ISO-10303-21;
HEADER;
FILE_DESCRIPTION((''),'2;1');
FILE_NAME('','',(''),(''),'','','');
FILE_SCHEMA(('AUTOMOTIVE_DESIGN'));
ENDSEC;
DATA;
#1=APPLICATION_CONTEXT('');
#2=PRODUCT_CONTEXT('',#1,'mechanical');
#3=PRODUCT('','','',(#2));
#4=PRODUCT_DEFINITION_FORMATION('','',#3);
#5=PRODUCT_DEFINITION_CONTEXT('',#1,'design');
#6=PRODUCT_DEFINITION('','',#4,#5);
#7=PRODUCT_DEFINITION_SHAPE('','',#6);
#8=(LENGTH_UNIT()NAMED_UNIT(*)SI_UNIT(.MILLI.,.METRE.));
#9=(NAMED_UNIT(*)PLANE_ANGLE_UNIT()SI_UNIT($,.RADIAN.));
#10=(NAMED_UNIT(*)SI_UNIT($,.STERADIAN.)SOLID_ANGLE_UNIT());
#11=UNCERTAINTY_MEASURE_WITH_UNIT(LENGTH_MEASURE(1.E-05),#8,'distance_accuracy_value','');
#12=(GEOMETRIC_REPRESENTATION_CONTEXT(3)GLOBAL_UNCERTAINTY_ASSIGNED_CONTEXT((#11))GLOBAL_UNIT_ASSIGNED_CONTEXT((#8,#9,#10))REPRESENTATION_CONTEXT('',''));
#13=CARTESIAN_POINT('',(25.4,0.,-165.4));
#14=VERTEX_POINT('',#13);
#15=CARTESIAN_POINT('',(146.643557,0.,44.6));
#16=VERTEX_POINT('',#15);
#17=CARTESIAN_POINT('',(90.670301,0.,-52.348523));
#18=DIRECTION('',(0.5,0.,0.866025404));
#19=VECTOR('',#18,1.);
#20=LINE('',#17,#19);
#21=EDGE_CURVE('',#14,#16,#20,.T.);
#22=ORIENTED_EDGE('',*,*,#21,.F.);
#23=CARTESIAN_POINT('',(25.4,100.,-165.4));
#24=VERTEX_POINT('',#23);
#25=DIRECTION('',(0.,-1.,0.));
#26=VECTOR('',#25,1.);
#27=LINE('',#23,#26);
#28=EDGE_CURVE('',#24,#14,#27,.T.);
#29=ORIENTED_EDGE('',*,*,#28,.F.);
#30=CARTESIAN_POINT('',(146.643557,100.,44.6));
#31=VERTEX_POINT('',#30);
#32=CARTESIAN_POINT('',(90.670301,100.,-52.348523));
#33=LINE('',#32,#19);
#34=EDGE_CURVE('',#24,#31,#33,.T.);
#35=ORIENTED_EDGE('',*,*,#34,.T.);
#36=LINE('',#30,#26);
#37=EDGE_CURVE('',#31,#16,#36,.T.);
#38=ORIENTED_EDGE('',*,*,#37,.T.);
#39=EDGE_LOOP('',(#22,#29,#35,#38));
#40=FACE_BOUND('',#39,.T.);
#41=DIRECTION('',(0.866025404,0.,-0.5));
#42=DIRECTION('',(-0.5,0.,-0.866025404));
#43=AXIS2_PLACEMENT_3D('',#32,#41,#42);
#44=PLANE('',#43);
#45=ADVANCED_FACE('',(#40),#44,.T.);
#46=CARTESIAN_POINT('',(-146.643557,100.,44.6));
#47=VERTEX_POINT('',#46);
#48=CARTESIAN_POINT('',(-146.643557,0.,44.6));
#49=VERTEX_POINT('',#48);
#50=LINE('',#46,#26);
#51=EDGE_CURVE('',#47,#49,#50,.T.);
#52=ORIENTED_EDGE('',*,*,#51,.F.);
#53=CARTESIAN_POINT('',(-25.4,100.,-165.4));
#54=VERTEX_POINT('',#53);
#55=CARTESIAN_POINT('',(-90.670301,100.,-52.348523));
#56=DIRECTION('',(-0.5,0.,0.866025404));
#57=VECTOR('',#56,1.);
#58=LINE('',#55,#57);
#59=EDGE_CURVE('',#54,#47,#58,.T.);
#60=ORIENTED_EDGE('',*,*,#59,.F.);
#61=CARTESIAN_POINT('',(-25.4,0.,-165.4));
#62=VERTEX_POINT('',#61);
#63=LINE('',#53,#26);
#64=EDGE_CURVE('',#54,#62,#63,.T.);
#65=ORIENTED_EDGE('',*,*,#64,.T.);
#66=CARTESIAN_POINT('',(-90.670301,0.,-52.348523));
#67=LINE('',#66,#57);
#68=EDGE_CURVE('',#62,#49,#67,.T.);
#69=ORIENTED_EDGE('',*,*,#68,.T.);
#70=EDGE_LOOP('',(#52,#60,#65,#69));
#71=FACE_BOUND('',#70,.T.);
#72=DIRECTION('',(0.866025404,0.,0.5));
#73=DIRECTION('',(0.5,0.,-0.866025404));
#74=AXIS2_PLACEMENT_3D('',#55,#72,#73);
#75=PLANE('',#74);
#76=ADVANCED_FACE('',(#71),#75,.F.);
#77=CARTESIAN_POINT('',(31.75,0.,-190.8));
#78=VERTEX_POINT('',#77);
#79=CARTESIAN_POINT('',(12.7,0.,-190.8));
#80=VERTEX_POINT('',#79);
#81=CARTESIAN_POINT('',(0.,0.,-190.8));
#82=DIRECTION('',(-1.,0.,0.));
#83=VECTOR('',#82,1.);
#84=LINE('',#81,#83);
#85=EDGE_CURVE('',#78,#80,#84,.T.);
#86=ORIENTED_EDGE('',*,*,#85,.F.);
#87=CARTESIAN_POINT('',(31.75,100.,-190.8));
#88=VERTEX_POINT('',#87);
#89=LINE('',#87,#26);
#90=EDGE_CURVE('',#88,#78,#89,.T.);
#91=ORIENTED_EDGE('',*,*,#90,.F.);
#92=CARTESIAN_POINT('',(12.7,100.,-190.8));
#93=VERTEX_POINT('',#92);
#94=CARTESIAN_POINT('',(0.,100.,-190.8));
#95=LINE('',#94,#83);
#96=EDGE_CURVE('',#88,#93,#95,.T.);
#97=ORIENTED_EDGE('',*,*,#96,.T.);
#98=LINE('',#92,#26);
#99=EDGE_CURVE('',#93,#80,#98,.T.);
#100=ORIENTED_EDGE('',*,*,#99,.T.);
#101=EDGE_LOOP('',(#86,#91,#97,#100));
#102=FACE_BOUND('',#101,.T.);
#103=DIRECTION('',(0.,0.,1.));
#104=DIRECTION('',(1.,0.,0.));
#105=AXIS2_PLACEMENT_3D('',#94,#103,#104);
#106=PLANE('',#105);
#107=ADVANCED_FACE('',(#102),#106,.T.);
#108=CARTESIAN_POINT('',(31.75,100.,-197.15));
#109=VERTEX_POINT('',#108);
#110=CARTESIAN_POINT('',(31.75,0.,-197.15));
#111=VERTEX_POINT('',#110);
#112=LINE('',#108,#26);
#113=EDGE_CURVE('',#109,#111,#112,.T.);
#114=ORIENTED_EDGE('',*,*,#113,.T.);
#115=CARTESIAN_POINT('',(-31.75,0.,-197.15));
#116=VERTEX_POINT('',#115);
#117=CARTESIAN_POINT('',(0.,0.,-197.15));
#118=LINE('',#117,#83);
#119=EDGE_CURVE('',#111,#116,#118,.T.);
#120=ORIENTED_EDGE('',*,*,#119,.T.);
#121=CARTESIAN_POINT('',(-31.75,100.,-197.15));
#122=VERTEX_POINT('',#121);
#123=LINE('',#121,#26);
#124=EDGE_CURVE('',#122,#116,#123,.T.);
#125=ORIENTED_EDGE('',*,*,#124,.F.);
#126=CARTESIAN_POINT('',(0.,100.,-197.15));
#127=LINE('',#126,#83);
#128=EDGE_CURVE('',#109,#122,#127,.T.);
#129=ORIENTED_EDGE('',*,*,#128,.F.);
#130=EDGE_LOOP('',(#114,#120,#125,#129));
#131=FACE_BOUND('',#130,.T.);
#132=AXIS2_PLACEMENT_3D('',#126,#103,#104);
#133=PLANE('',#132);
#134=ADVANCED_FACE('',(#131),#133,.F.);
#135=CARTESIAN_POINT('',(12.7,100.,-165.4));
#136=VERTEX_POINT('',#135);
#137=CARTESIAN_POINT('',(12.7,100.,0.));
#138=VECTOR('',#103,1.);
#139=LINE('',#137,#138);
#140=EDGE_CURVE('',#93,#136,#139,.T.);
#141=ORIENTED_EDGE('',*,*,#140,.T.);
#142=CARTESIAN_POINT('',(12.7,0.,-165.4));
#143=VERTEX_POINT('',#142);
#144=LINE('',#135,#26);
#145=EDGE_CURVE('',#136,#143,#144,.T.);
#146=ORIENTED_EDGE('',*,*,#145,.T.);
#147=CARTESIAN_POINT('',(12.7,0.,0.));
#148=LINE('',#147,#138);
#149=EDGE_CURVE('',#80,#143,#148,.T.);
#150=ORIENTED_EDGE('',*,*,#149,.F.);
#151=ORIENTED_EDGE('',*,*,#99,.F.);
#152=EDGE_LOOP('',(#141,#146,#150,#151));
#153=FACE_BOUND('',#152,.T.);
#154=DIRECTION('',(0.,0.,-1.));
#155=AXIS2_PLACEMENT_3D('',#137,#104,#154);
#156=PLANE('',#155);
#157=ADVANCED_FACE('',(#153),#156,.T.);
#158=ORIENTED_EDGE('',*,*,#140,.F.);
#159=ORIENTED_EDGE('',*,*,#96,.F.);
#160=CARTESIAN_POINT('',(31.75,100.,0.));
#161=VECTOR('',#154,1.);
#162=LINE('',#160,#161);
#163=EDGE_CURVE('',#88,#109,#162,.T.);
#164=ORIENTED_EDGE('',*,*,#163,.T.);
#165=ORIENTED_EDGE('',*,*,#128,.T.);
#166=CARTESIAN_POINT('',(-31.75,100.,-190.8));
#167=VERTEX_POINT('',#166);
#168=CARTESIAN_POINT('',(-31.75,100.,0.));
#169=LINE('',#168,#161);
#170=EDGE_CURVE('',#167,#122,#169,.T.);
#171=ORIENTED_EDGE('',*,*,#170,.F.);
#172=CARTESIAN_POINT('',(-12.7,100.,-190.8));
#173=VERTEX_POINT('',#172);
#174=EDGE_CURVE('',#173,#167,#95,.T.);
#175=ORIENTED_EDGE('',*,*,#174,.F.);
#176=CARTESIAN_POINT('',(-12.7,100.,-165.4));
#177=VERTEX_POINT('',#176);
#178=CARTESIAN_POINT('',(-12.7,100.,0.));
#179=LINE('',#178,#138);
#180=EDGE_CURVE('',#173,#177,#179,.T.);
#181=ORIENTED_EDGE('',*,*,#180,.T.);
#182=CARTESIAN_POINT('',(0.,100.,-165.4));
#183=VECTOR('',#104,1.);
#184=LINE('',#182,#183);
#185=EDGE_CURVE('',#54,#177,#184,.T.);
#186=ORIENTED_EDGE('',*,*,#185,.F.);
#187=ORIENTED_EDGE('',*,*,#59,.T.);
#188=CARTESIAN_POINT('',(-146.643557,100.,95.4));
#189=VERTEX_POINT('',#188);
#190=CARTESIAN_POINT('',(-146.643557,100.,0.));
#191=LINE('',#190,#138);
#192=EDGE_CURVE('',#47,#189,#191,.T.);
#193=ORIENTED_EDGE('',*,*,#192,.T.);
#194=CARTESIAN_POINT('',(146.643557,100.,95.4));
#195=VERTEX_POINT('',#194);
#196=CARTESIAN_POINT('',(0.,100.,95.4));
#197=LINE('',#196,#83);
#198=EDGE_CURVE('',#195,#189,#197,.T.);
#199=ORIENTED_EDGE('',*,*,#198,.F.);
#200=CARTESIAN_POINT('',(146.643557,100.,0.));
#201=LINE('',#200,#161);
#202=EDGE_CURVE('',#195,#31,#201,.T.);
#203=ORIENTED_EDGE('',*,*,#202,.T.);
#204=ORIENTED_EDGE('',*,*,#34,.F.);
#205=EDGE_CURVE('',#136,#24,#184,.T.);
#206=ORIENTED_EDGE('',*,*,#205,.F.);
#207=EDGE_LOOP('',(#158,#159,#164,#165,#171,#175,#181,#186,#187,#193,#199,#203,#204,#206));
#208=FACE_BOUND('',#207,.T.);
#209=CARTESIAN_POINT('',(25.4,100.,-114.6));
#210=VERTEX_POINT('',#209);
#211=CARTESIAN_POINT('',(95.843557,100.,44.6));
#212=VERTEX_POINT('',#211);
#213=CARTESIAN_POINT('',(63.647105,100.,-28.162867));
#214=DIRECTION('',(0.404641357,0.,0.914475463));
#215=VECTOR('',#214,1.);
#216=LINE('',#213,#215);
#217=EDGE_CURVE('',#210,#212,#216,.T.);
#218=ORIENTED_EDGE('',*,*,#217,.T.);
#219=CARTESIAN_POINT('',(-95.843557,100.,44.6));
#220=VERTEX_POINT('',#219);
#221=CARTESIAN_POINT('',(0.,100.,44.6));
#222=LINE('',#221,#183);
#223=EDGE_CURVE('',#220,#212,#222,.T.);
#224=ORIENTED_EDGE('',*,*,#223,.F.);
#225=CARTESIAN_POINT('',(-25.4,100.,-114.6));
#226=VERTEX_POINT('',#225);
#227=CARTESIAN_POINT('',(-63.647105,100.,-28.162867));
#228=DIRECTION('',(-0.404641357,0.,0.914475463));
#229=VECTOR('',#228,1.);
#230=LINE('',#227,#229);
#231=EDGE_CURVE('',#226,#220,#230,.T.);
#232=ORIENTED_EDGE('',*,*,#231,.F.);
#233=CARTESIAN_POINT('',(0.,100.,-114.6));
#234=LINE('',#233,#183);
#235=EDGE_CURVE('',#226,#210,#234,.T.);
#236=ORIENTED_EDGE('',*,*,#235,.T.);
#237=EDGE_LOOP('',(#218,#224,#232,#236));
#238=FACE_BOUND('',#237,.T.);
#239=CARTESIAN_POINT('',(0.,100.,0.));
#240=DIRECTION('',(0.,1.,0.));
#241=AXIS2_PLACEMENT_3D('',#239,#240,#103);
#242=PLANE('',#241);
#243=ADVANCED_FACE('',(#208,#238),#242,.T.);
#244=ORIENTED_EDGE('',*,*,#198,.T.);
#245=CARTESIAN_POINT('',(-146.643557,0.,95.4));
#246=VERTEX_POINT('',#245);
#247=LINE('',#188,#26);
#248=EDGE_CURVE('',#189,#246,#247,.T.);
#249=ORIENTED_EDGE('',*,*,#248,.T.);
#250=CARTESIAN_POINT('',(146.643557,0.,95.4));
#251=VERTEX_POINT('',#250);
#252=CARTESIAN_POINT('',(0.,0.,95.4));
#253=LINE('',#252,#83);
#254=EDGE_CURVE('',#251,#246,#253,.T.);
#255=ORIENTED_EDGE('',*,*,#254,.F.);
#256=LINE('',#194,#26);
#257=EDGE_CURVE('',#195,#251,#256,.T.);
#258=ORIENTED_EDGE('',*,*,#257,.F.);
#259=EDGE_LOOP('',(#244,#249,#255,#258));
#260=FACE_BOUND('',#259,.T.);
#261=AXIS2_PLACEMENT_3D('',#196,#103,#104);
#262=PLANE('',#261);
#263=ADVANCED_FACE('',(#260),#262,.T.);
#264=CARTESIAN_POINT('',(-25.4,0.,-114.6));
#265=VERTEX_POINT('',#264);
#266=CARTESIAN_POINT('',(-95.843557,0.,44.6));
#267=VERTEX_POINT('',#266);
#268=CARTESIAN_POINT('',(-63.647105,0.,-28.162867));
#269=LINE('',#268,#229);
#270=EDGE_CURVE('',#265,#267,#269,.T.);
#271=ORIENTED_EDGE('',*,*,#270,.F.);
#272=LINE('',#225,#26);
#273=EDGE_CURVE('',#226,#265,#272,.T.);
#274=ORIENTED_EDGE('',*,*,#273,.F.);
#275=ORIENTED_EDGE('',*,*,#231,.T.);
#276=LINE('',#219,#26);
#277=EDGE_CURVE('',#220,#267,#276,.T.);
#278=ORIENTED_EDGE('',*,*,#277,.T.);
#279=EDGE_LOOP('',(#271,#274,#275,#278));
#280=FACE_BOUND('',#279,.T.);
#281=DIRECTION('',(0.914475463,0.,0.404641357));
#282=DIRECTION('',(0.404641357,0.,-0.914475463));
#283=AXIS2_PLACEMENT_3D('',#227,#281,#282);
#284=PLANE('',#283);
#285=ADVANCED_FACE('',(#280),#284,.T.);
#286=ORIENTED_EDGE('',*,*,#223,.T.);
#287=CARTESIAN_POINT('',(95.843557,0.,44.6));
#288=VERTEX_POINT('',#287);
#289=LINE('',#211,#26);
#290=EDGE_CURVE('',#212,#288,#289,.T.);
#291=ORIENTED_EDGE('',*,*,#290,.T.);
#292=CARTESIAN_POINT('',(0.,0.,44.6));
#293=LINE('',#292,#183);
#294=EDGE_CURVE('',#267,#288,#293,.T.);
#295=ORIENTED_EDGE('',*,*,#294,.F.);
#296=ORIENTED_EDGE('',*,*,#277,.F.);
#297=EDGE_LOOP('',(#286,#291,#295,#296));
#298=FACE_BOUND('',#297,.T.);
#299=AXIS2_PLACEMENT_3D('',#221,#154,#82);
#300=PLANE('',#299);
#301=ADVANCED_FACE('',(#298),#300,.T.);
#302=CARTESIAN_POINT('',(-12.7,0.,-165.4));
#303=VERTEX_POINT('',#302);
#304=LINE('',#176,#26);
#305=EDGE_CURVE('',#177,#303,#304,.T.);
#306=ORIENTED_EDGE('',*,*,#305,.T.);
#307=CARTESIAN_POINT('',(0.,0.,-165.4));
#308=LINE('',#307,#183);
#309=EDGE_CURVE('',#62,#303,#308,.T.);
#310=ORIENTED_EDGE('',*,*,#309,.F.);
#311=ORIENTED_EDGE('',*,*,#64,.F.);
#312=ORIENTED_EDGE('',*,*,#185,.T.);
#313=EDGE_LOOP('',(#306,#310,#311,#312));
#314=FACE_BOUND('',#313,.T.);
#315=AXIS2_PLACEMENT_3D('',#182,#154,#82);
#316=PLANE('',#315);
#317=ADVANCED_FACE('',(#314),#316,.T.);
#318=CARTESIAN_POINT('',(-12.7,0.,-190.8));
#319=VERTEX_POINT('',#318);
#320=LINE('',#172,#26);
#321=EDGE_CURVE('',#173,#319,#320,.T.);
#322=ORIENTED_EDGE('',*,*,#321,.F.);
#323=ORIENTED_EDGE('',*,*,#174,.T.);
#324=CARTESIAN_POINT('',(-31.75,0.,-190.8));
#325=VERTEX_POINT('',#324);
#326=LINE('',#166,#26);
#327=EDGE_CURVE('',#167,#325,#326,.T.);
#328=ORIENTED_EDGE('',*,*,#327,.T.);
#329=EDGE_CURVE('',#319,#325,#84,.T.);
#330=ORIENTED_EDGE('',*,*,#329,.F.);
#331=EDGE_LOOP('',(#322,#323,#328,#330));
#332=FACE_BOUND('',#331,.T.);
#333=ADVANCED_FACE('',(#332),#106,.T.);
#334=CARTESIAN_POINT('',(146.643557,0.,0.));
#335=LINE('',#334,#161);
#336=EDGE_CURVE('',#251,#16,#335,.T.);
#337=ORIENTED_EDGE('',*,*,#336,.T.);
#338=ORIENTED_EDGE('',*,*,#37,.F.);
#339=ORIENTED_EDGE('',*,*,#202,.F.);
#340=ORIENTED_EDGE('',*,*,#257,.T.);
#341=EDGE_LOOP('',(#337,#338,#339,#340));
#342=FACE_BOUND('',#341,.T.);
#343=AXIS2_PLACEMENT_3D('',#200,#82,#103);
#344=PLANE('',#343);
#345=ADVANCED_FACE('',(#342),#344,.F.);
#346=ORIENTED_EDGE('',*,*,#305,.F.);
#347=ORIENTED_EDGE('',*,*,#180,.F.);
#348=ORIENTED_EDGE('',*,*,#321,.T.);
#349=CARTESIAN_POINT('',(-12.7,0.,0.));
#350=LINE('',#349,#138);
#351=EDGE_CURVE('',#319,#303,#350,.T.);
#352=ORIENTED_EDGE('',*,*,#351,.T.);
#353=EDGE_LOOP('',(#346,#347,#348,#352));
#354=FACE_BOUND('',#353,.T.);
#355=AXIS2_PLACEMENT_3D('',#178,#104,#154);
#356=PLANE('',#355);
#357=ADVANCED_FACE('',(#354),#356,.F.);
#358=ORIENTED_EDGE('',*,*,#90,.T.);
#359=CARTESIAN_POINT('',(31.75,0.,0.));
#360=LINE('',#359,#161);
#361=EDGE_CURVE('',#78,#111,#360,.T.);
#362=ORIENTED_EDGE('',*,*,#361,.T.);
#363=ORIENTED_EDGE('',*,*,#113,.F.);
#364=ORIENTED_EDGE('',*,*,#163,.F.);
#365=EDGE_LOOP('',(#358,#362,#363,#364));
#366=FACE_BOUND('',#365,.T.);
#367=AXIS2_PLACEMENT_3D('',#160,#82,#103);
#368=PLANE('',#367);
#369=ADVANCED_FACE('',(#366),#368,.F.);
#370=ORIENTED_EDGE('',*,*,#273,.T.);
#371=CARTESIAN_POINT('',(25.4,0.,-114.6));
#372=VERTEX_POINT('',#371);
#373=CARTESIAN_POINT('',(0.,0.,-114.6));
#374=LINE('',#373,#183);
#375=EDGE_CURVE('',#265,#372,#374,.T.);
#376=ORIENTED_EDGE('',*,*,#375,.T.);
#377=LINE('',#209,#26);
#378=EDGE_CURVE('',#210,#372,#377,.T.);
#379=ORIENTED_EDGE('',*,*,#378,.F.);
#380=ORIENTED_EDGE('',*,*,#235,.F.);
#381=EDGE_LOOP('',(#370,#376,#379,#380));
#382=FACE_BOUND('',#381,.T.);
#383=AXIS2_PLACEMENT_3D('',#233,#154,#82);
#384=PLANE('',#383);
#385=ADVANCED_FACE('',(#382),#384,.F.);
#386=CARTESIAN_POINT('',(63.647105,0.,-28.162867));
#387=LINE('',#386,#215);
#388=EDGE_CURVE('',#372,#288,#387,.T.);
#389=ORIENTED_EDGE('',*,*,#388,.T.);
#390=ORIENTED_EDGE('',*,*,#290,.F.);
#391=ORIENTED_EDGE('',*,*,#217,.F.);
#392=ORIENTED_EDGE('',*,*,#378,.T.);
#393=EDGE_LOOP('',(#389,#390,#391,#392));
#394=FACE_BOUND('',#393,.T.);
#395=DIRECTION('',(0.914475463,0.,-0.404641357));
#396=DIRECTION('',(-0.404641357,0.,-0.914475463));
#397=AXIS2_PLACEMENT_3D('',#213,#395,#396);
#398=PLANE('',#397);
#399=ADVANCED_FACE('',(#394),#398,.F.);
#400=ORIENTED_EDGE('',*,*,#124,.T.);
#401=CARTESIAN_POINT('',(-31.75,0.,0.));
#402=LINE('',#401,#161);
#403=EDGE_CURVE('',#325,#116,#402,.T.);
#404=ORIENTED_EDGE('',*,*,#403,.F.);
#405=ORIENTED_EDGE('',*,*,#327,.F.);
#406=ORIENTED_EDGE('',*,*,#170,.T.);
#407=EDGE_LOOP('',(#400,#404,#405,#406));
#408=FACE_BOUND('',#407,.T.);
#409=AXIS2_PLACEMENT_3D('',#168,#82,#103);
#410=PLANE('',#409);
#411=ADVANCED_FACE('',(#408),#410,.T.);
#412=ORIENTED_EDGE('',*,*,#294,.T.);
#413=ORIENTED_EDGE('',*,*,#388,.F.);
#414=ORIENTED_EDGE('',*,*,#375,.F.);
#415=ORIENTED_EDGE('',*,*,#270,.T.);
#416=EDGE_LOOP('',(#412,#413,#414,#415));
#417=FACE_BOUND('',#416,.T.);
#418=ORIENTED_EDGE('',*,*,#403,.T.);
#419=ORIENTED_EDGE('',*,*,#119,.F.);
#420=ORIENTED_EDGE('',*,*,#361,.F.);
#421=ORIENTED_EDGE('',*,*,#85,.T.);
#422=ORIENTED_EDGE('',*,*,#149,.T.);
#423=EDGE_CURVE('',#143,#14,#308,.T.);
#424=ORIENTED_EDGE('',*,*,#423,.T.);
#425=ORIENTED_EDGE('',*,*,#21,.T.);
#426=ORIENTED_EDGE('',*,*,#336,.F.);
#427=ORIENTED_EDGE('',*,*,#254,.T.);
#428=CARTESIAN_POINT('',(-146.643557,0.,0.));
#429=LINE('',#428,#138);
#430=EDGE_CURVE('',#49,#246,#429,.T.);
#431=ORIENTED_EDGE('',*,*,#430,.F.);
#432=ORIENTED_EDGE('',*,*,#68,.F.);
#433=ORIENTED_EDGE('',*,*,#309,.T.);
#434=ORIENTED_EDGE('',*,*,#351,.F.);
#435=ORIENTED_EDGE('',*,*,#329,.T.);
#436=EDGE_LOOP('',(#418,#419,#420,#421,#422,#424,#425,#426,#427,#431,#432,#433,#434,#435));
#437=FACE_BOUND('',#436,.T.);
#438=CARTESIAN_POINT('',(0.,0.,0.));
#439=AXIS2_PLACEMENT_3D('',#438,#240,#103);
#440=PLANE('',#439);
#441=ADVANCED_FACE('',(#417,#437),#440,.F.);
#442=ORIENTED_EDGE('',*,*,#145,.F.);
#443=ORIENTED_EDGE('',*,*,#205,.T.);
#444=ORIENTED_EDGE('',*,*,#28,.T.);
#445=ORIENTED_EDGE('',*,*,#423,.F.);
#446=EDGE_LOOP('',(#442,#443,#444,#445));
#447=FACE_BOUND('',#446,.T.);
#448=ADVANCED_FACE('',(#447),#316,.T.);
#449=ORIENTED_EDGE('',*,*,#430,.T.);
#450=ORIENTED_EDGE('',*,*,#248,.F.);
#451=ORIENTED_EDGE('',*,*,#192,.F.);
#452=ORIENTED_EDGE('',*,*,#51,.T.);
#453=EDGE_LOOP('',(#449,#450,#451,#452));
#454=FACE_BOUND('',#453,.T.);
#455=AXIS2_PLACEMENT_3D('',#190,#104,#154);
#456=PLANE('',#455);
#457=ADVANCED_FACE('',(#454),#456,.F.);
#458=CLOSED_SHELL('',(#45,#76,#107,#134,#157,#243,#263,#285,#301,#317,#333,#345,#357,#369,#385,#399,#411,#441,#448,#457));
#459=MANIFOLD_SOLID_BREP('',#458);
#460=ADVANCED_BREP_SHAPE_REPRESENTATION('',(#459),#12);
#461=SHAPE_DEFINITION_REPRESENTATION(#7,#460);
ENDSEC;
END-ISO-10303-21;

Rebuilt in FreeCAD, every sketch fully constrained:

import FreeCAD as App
import Part
import Sketcher
from FreeCAD import Vector
Q = App.Units.Quantity

doc = App.newDocument("Part")
params = doc.addObject("Spreadsheet::Sheet", "Params")
for row, (alias, value) in enumerate([
    ("sketch1_width", "2 in"),
    ("sketch1_height", "1 in"),
    ("sketch1_width2", "0.5 in"),
    ("sketch1_width3", "2.5 in"),
    ("sketch1_height2", "0.25 in"),
    ("pad1_length", "100 mm"),
], start=1):
    params.set(f"A{row}", alias)
    params.set(f"B{row}", "=" + value)
    params.setAlias(f"B{row}", alias)

body = doc.addObject("PartDesign::Body", "Body")

sketch1 = body.newObject("Sketcher::SketchObject", "Sketch")
sketch1.AttachmentSupport = (doc.getObject("XZ_Plane"), [""])
sketch1.MapMode = "FlatFace"
sketch1.addGeometry([
    Part.LineSegment(Vector(-147, 95, 0), Vector(147, 95, 0)),
    Part.LineSegment(Vector(147, 95, 0), Vector(147, 45, 0)),
    Part.LineSegment(Vector(147, 45, 0), Vector(25, -165, 0)),
    Part.LineSegment(Vector(25, -165, 0), Vector(13, -165, 0)),
    Part.LineSegment(Vector(13, -165, 0), Vector(13, -191, 0)),
    Part.LineSegment(Vector(13, -191, 0), Vector(32, -191, 0)),
    Part.LineSegment(Vector(32, -191, 0), Vector(32, -197, 0)),
    Part.LineSegment(Vector(32, -197, 0), Vector(-32, -197, 0)),
    Part.LineSegment(Vector(-32, -197, 0), Vector(-32, -191, 0)),
    Part.LineSegment(Vector(-32, -191, 0), Vector(-13, -191, 0)),
    Part.LineSegment(Vector(-13, -191, 0), Vector(-13, -165, 0)),
    Part.LineSegment(Vector(-13, -165, 0), Vector(-25, -165, 0)),
    Part.LineSegment(Vector(-25, -165, 0), Vector(-147, 45, 0)),
    Part.LineSegment(Vector(-147, 45, 0), Vector(-147, 95, 0)),
    Part.LineSegment(Vector(-25, -115, 0), Vector(25, -115, 0)),
    Part.LineSegment(Vector(25, -115, 0), Vector(96, 45, 0)),
    Part.LineSegment(Vector(96, 45, 0), Vector(-96, 45, 0)),
    Part.LineSegment(Vector(-96, 45, 0), Vector(-25, -115, 0)),
], False)
sketch1.addConstraint([
    Sketcher.Constraint("Coincident", 0, 2, 1, 1),
    Sketcher.Constraint("Coincident", 1, 2, 2, 1),
    Sketcher.Constraint("Coincident", 2, 2, 3, 1),
    Sketcher.Constraint("Coincident", 3, 2, 4, 1),
    Sketcher.Constraint("Coincident", 4, 2, 5, 1),
    Sketcher.Constraint("Coincident", 5, 2, 6, 1),
    Sketcher.Constraint("Coincident", 6, 2, 7, 1),
    Sketcher.Constraint("Coincident", 7, 2, 8, 1),
    Sketcher.Constraint("Coincident", 8, 2, 9, 1),
    Sketcher.Constraint("Coincident", 9, 2, 10, 1),
    Sketcher.Constraint("Coincident", 10, 2, 11, 1),
    Sketcher.Constraint("Coincident", 11, 2, 12, 1),
    Sketcher.Constraint("Coincident", 12, 2, 13, 1),
    Sketcher.Constraint("Coincident", 13, 2, 0, 1),
    Sketcher.Constraint("Coincident", 14, 2, 15, 1),
    Sketcher.Constraint("Coincident", 15, 2, 16, 1),
    Sketcher.Constraint("Coincident", 16, 2, 17, 1),
    Sketcher.Constraint("Coincident", 17, 2, 14, 1),
    Sketcher.Constraint("Horizontal", 0),
    Sketcher.Constraint("Vertical", 1),
    Sketcher.Constraint("Horizontal", 3),
    Sketcher.Constraint("Vertical", 4),
    Sketcher.Constraint("Horizontal", 5),
    Sketcher.Constraint("Vertical", 6),
    Sketcher.Constraint("Horizontal", 7),
    Sketcher.Constraint("Vertical", 8),
    Sketcher.Constraint("Horizontal", 9),
    Sketcher.Constraint("Vertical", 10),
    Sketcher.Constraint("Horizontal", 11),
    Sketcher.Constraint("Vertical", 13),
    Sketcher.Constraint("Horizontal", 14),
    Sketcher.Constraint("Horizontal", 16),
    Sketcher.Constraint("Symmetric", 5, 2, 8, 2, -2),
    Sketcher.Constraint("Symmetric", 3, 2, 10, 2, -2),
    Sketcher.Constraint("Symmetric", 1, 2, 12, 2, -2),
    Sketcher.Constraint("Horizontal", 12, 2, 15, 2),
    Sketcher.Constraint("Vertical", 2, 2, 14, 2),
    Sketcher.Constraint("Vertical", 11, 2, 17, 2),
    Sketcher.Constraint("Equal", 3, 11),
    Sketcher.Constraint("Equal", 14, 1),
    Sketcher.Constraint("Equal", 15, 17),
    Sketcher.Constraint("DistanceX", 14, 1, 14, 2, Q("2 in")),
    Sketcher.Constraint("DistanceY", 4, 2, 4, 1, Q("1 in")),
    Sketcher.Constraint("DistanceX", 3, 2, 3, 1, Q("0.5 in")),
    Sketcher.Constraint("DistanceX", 7, 2, 7, 1, Q("2.5 in")),
    Sketcher.Constraint("Angle", 2, Q("-120 deg")),
    Sketcher.Constraint("DistanceY", 2, 2, 14, 2, Q("2 in")),
    Sketcher.Constraint("DistanceX", 15, 2, 1, 2, Q("2 in")),
    Sketcher.Constraint("DistanceY", 6, 2, 6, 1, Q("0.25 in")),
    Sketcher.Constraint("DistanceY", -1, 1, 0, 2, 95.4),
    Sketcher.Constraint("DistanceY", 2, 2, -1, 1, 165.4),
])
sketch1.setExpression("Constraints[41]", "Params.sketch1_width")
sketch1.setExpression("Constraints[42]", "Params.sketch1_height")
sketch1.setExpression("Constraints[43]", "Params.sketch1_width2")
sketch1.setExpression("Constraints[44]", "Params.sketch1_width3")
sketch1.setExpression("Constraints[48]", "Params.sketch1_height2")
pad1 = body.newObject("PartDesign::Pad", "Pad")
pad1.Profile = sketch1
pad1.setExpression("Length", "Params.pad1_length")
pad1.Reversed = True

doc.recompute()
